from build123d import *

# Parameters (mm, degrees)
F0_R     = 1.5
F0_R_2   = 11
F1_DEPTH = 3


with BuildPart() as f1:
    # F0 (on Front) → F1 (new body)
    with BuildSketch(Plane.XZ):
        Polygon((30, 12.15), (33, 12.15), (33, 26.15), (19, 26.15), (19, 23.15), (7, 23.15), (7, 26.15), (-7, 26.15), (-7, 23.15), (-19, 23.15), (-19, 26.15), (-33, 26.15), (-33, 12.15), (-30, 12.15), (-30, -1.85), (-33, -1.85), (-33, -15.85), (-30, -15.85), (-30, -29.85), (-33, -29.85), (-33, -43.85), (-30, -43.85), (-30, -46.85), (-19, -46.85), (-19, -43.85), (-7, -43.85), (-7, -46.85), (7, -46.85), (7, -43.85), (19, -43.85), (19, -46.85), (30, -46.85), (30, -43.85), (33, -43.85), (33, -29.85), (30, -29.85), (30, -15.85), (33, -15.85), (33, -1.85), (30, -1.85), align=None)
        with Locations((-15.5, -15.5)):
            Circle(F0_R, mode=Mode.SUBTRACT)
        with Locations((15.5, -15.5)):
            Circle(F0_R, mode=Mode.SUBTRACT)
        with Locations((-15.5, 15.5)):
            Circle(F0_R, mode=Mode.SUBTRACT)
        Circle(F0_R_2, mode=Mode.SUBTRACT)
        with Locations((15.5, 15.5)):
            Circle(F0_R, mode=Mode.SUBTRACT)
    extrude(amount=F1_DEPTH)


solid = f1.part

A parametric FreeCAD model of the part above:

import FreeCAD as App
import Part
import Sketcher

V = App.Vector

doc = App.newDocument("Part")
params = doc.addObject("Spreadsheet::Sheet", "Params")
for row, (alias, value) in enumerate([
    ("sketch1_diameter", "3 mm"),
    ("sketch1_diameter2", "22 mm"),
    ("sketch1_width", "3 mm"),
    ("sketch1_width2", "14 mm"),
    ("sketch1_width3", "12 mm"),
    ("pad1_length", "3 mm"),
], start=1):
    params.set(f"A{row}", alias)
    params.set(f"B{row}", "=" + value)
    params.setAlias(f"B{row}", alias)

body = doc.addObject("PartDesign::Body", "Body")

# Sketch on XZ plane
sketch1 = doc.addObject("Sketcher::SketchObject", "Sketch")
body.addObject(sketch1)
sketch1.AttachmentSupport = (doc.XZ_Plane, [""])
sketch1.MapMode = "FlatFace"
sketch1.addGeometry(Part.LineSegment(V(30, 12.2, 0), V(33, 12.2, 0)), False)
sketch1.addGeometry(Part.LineSegment(V(33, 12.2, 0), V(33, 26.1, 0)), False)
sketch1.addGeometry(Part.LineSegment(V(33, 26.1, 0), V(19, 26.1, 0)), False)
sketch1.addGeometry(Part.LineSegment(V(19, 26.1, 0), V(19, 23.1, 0)), False)
sketch1.addGeometry(Part.LineSegment(V(19, 23.1, 0), V(7, 23.1, 0)), False)
sketch1.addGeometry(Part.LineSegment(V(7, 23.1, 0), V(7, 26.1, 0)), False)
sketch1.addGeometry(Part.LineSegment(V(7, 26.1, 0), V(-7, 26.1, 0)), False)
sketch1.addGeometry(Part.LineSegment(V(-7, 26.1, 0), V(-7, 23.1, 0)), False)
sketch1.addGeometry(Part.LineSegment(V(-7, 23.1, 0), V(-19, 23.1, 0)), False)
sketch1.addGeometry(Part.LineSegment(V(-19, 23.1, 0), V(-19, 26.1, 0)), False)
sketch1.addGeometry(Part.LineSegment(V(-19, 26.1, 0), V(-33, 26.1, 0)), False)
sketch1.addGeometry(Part.LineSegment(V(-33, 26.1, 0), V(-33, 12.2, 0)), False)
sketch1.addGeometry(Part.LineSegment(V(-33, 12.2, 0), V(-30, 12.2, 0)), False)
sketch1.addGeometry(Part.LineSegment(V(-30, 12.2, 0), V(-30, -1.9, 0)), False)
sketch1.addGeometry(Part.LineSegment(V(-30, -1.9, 0), V(-33, -1.9, 0)), False)
sketch1.addGeometry(Part.LineSegment(V(-33, -1.9, 0), V(-33, -15.8, 0)), False)
sketch1.addGeometry(Part.LineSegment(V(-33, -15.8, 0), V(-30, -15.8, 0)), False)
sketch1.addGeometry(Part.LineSegment(V(-30, -15.8, 0), V(-30, -29.9, 0)), False)
sketch1.addGeometry(Part.LineSegment(V(-30, -29.9, 0), V(-33, -29.9, 0)), False)
sketch1.addGeometry(Part.LineSegment(V(-33, -29.9, 0), V(-33, -43.9, 0)), False)
sketch1.addGeometry(Part.LineSegment(V(-33, -43.9, 0), V(-30, -43.9, 0)), False)
sketch1.addGeometry(Part.LineSegment(V(-30, -43.9, 0), V(-30, -46.9, 0)), False)
sketch1.addGeometry(Part.LineSegment(V(-30, -46.9, 0), V(-19, -46.9, 0)), False)
sketch1.addGeometry(Part.LineSegment(V(-19, -46.9, 0), V(-19, -43.9, 0)), False)
sketch1.addGeometry(Part.LineSegment(V(-19, -43.9, 0), V(-7, -43.9, 0)), False)
sketch1.addGeometry(Part.LineSegment(V(-7, -43.9, 0), V(-7, -46.9, 0)), False)
sketch1.addGeometry(Part.LineSegment(V(-7, -46.9, 0), V(7, -46.9, 0)), False)
sketch1.addGeometry(Part.LineSegment(V(7, -46.9, 0), V(7, -43.9, 0)), False)
sketch1.addGeometry(Part.LineSegment(V(7, -43.9, 0), V(19, -43.9, 0)), False)
sketch1.addGeometry(Part.LineSegment(V(19, -43.9, 0), V(19, -46.9, 0)), False)
sketch1.addGeometry(Part.LineSegment(V(19, -46.9, 0), V(30, -46.9, 0)), False)
sketch1.addGeometry(Part.LineSegment(V(30, -46.9, 0), V(30, -43.9, 0)), False)
sketch1.addGeometry(Part.LineSegment(V(30, -43.9, 0), V(33, -43.9, 0)), False)
sketch1.addGeometry(Part.LineSegment(V(33, -43.9, 0), V(33, -29.9, 0)), False)
sketch1.addGeometry(Part.LineSegment(V(33, -29.9, 0), V(30, -29.9, 0)), False)
sketch1.addGeometry(Part.LineSegment(V(30, -29.9, 0), V(30, -15.8, 0)), False)
sketch1.addGeometry(Part.LineSegment(V(30, -15.8, 0), V(33, -15.8, 0)), False)
sketch1.addGeometry(Part.LineSegment(V(33, -15.8, 0), V(33, -1.9, 0)), False)
sketch1.addGeometry(Part.LineSegment(V(33, -1.9, 0), V(30, -1.9, 0)), False)
sketch1.addGeometry(Part.LineSegment(V(30, -1.9, 0), V(30, 12.2, 0)), False)
sketch1.addGeometry(Part.Circle(V(-15.5, -15.5, 0), V(0, 0, 1), 1.5), False)
sketch1.addGeometry(Part.Circle(V(15.5, -15.5, 0), V(0, 0, 1), 1.5), False)
sketch1.addGeometry(Part.Circle(V(-15.5, 15.5, 0), V(0, 0, 1), 1.5), False)
sketch1.addGeometry(Part.Circle(V(0, 0, 0), V(0, 0, 1), 11), False)
sketch1.addGeometry(Part.Circle(V(15.5, 15.5, 0), V(0, 0, 1), 1.5), False)
sketch1.addConstraint(Sketcher.Constraint("Coincident", 0, 2, 1, 1))
sketch1.addConstraint(Sketcher.Constraint("Coincident", 1, 2, 2, 1))
sketch1.addConstraint(Sketcher.Constraint("Coincident", 2, 2, 3, 1))
sketch1.addConstraint(Sketcher.Constraint("Coincident", 3, 2, 4, 1))
sketch1.addConstraint(Sketcher.Constraint("Coincident", 4, 2, 5, 1))
sketch1.addConstraint(Sketcher.Constraint("Coincident", 5, 2, 6, 1))
sketch1.addConstraint(Sketcher.Constraint("Coincident", 6, 2, 7, 1))
sketch1.addConstraint(Sketcher.Constraint("Coincident", 7, 2, 8, 1))
sketch1.addConstraint(Sketcher.Constraint("Coincident", 8, 2, 9, 1))
sketch1.addConstraint(Sketcher.Constraint("Coincident", 9, 2, 10, 1))
sketch1.addConstraint(Sketcher.Constraint("Coincident", 10, 2, 11, 1))
sketch1.addConstraint(Sketcher.Constraint("Coincident", 11, 2, 12, 1))
sketch1.addConstraint(Sketcher.Constraint("Coincident", 12, 2, 13, 1))
sketch1.addConstraint(Sketcher.Constraint("Coincident", 13, 2, 14, 1))
sketch1.addConstraint(Sketcher.Constraint("Coincident", 14, 2, 15, 1))
sketch1.addConstraint(Sketcher.Constraint("Coincident", 15, 2, 16, 1))
sketch1.addConstraint(Sketcher.Constraint("Coincident", 16, 2, 17, 1))
sketch1.addConstraint(Sketcher.Constraint("Coincident", 17, 2, 18, 1))
sketch1.addConstraint(Sketcher.Constraint("Coincident", 18, 2, 19, 1))
sketch1.addConstraint(Sketcher.Constraint("Coincident", 19, 2, 20, 1))
sketch1.addConstraint(Sketcher.Constraint("Coincident", 20, 2, 21, 1))
sketch1.addConstraint(Sketcher.Constraint("Coincident", 21, 2, 22, 1))
sketch1.addConstraint(Sketcher.Constraint("Coincident", 22, 2, 23, 1))
sketch1.addConstraint(Sketcher.Constraint("Coincident", 23, 2, 24, 1))
sketch1.addConstraint(Sketcher.Constraint("Coincident", 24, 2, 25, 1))
sketch1.addConstraint(Sketcher.Constraint("Coincident", 25, 2, 26, 1))
sketch1.addConstraint(Sketcher.Constraint("Coincident", 26, 2, 27, 1))
sketch1.addConstraint(Sketcher.Constraint("Coincident", 27, 2, 28, 1))
sketch1.addConstraint(Sketcher.Constraint("Coincident", 28, 2, 29, 1))
sketch1.addConstraint(Sketcher.Constraint("Coincident", 29, 2, 30, 1))
sketch1.addConstraint(Sketcher.Constraint("Coincident", 30, 2, 31, 1))
sketch1.addConstraint(Sketcher.Constraint("Coincident", 31, 2, 32, 1))
sketch1.addConstraint(Sketcher.Constraint("Coincident", 32, 2, 33, 1))
sketch1.addConstraint(Sketcher.Constraint("Coincident", 33, 2, 34, 1))
sketch1.addConstraint(Sketcher.Constraint("Coincident", 34, 2, 35, 1))
sketch1.addConstraint(Sketcher.Constraint("Coincident", 35, 2, 36, 1))
sketch1.addConstraint(Sketcher.Constraint("Coincident", 36, 2, 37, 1))
sketch1.addConstraint(Sketcher.Constraint("Coincident", 37, 2, 38, 1))
sketch1.addConstraint(Sketcher.Constraint("Coincident", 38, 2, 39, 1))
sketch1.addConstraint(Sketcher.Constraint("Coincident", 39, 2, 0, 1))
sketch1.addConstraint(Sketcher.Constraint("Horizontal", 0))
sketch1.addConstraint(Sketcher.Constraint("Vertical", 1))
sketch1.addConstraint(Sketcher.Constraint("Horizontal", 2))
sketch1.addConstraint(Sketcher.Constraint("Vertical", 3))
sketch1.addConstraint(Sketcher.Constraint("Horizontal", 4))
sketch1.addConstraint(Sketcher.Constraint("Vertical", 5))
sketch1.addConstraint(Sketcher.Constraint("Horizontal", 6))
sketch1.addConstraint(Sketcher.Constraint("Vertical", 7))
sketch1.addConstraint(Sketcher.Constraint("Horizontal", 8))
sketch1.addConstraint(Sketcher.Constraint("Vertical", 9))
sketch1.addConstraint(Sketcher.Constraint("Horizontal", 10))
sketch1.addConstraint(Sketcher.Constraint("Vertical", 11))
sketch1.addConstraint(Sketcher.Constraint("Horizontal", 12))
sketch1.addConstraint(Sketcher.Constraint("Vertical", 13))
sketch1.addConstraint(Sketcher.Constraint("Horizontal", 14))
sketch1.addConstraint(Sketcher.Constraint("Vertical", 15))
sketch1.addConstraint(Sketcher.Constraint("Horizontal", 16))
sketch1.addConstraint(Sketcher.Constraint("Vertical", 17))
sketch1.addConstraint(Sketcher.Constraint("Horizontal", 18))
sketch1.addConstraint(Sketcher.Constraint("Vertical", 19))
sketch1.addConstraint(Sketcher.Constraint("Horizontal", 20))
sketch1.addConstraint(Sketcher.Constraint("Vertical", 21))
sketch1.addConstraint(Sketcher.Constraint("Horizontal", 22))
sketch1.addConstraint(Sketcher.Constraint("Vertical", 23))
sketch1.addConstraint(Sketcher.Constraint("Horizontal", 24))
sketch1.addConstraint(Sketcher.Constraint("Vertical", 25))
sketch1.addConstraint(Sketcher.Constraint("Horizontal", 26))
sketch1.addConstraint(Sketcher.Constraint("Vertical", 27))
sketch1.addConstraint(Sketcher.Constraint("Horizontal", 28))
sketch1.addConstraint(Sketcher.Constraint("Vertical", 29))
sketch1.addConstraint(Sketcher.Constraint("Horizontal", 30))
sketch1.addConstraint(Sketcher.Constraint("Vertical", 31))
sketch1.addConstraint(Sketcher.Constraint("Horizontal", 32))
sketch1.addConstraint(Sketcher.Constraint("Vertical", 33))
sketch1.addConstraint(Sketcher.Constraint("Horizontal", 34))
sketch1.addConstraint(Sketcher.Constraint("Vertical", 35))
sketch1.addConstraint(Sketcher.Constraint("Horizontal", 36))
sketch1.addConstraint(Sketcher.Constraint("Vertical", 37))
sketch1.addConstraint(Sketcher.Constraint("Horizontal", 38))
sketch1.addConstraint(Sketcher.Constraint("Vertical", 39))
sketch1.addConstraint(Sketcher.Constraint("Coincident", 43, 3, -1, 1))
sketch1.addConstraint(Sketcher.Constraint("Equal", 40, 41))
sketch1.addConstraint(Sketcher.Constraint("Equal", 41, 42))
sketch1.addConstraint(Sketcher.Constraint("Equal", 42, 44))
sketch1.addConstraint(Sketcher.Constraint("Symmetric", 41, 3, 42, 3, -1, 1))
sketch1.addConstraint(Sketcher.Constraint("Symmetric", 40, 3, 44, 3, -1, 1))
sketch1.addConstraint(Sketcher.Constraint("Symmetric", 40, 3, 41, 3, -2))
sketch1.addConstraint(Sketcher.Constraint("Symmetric", 4, 2, 7, 2, -2))
sketch1.addConstraint(Sketcher.Constraint("Symmetric", 2, 2, 9, 2, -2))
sketch1.addConstraint(Sketcher.Constraint("Symmetric", 0, 2, 11, 2, -2))
sketch1.addConstraint(Sketcher.Constraint("Symmetric", 24, 2, 27, 2, -2))
sketch1.addConstraint(Sketcher.Constraint("Symmetric", 22, 2, 29, 2, -2))
sketch1.addConstraint(Sketcher.Constraint("Symmetric", 20, 2, 31, 2, -2))
sketch1.addConstraint(Sketcher.Constraint("Symmetric", 18, 2, 33, 2, -2))
sketch1.addConstraint(Sketcher.Constraint("Symmetric", 16, 2, 35, 2, -2))
sketch1.addConstraint(Sketcher.Constraint("Symmetric", 14, 2, 37, 2, -2))
sketch1.addConstraint(Sketcher.Constraint("Horizontal", 2, 2, 5, 2))
sketch1.addConstraint(Sketcher.Constraint("Horizontal", 20, 2, 23, 2))
sketch1.addConstraint(Sketcher.Constraint("Horizontal", 22, 2, 25, 2))
sketch1.addConstraint(Sketcher.Constraint("Vertical", 11, 2, 14, 2))
sketch1.addConstraint(Sketcher.Constraint("Vertical", 13, 2, 16, 2))
sketch1.addConstraint(Sketcher.Constraint("Vertical", 15, 2, 18, 2))
sketch1.addConstraint(Sketcher.Constraint("Vertical", 17, 2, 20, 2))
sketch1.addConstraint(Sketcher.Constraint("Vertical", 9, 2, 22, 2))
sketch1.addConstraint(Sketcher.Constraint("Vertical", 7, 2, 24, 2))
sketch1.addConstraint(Sketcher.Constraint("Vertical", 35, 2, 38, 2))
sketch1.addConstraint(Sketcher.Constraint("Equal", 2, 6))
sketch1.addConstraint(Sketcher.Constraint("Equal", 26, 1))
sketch1.addConstraint(Sketcher.Constraint("Equal", 38, 3))
sketch1.addConstraint(Sketcher.Constraint("Equal", 11, 13))
sketch1.addConstraint(Sketcher.Constraint("Equal", 13, 15))
sketch1.addConstraint(Sketcher.Constraint("Equal", 15, 17))
sketch1.addConstraint(Sketcher.Constraint("Equal", 17, 19))
sketch1.addConstraint(Sketcher.Constraint("Equal", 9, 21))
sketch1.addConstraint(Sketcher.Constraint("Diameter", 40, 3.0))
sketch1.addConstraint(Sketcher.Constraint("Diameter", 43, 22.0))
sketch1.addConstraint(Sketcher.Constraint("DistanceX", 0, 1, 0, 2, 3.0))
sketch1.addConstraint(Sketcher.Constraint("DistanceX", 2, 2, 2, 1, 14.0))
sketch1.addConstraint(Sketcher.Constraint("DistanceX", 4, 2, 4, 1, 12.0))
sketch1.addConstraint(Sketcher.Constraint("DistanceX", 40, 3, 41, 3, 31.0))
sketch1.addConstraint(Sketcher.Constraint("DistanceY", 40, 3, 42, 3, 31.0))
sketch1.addConstraint(Sketcher.Constraint("DistanceY", -1, 1, 0, 2, 12.15))
sketch1.setExpression("Constraints[114]", "Params.sketch1_diameter")
sketch1.setExpression("Constraints[115]", "Params.sketch1_diameter2")
sketch1.setExpression("Constraints[116]", "Params.sketch1_width")
sketch1.setExpression("Constraints[117]", "Params.sketch1_width2")
sketch1.setExpression("Constraints[118]", "Params.sketch1_width3")
pad1 = doc.addObject("PartDesign::Pad", "Pad")
body.addObject(pad1)
pad1.Profile = sketch1
pad1.setExpression("Length", "Params.pad1_length")

doc.recompute()
